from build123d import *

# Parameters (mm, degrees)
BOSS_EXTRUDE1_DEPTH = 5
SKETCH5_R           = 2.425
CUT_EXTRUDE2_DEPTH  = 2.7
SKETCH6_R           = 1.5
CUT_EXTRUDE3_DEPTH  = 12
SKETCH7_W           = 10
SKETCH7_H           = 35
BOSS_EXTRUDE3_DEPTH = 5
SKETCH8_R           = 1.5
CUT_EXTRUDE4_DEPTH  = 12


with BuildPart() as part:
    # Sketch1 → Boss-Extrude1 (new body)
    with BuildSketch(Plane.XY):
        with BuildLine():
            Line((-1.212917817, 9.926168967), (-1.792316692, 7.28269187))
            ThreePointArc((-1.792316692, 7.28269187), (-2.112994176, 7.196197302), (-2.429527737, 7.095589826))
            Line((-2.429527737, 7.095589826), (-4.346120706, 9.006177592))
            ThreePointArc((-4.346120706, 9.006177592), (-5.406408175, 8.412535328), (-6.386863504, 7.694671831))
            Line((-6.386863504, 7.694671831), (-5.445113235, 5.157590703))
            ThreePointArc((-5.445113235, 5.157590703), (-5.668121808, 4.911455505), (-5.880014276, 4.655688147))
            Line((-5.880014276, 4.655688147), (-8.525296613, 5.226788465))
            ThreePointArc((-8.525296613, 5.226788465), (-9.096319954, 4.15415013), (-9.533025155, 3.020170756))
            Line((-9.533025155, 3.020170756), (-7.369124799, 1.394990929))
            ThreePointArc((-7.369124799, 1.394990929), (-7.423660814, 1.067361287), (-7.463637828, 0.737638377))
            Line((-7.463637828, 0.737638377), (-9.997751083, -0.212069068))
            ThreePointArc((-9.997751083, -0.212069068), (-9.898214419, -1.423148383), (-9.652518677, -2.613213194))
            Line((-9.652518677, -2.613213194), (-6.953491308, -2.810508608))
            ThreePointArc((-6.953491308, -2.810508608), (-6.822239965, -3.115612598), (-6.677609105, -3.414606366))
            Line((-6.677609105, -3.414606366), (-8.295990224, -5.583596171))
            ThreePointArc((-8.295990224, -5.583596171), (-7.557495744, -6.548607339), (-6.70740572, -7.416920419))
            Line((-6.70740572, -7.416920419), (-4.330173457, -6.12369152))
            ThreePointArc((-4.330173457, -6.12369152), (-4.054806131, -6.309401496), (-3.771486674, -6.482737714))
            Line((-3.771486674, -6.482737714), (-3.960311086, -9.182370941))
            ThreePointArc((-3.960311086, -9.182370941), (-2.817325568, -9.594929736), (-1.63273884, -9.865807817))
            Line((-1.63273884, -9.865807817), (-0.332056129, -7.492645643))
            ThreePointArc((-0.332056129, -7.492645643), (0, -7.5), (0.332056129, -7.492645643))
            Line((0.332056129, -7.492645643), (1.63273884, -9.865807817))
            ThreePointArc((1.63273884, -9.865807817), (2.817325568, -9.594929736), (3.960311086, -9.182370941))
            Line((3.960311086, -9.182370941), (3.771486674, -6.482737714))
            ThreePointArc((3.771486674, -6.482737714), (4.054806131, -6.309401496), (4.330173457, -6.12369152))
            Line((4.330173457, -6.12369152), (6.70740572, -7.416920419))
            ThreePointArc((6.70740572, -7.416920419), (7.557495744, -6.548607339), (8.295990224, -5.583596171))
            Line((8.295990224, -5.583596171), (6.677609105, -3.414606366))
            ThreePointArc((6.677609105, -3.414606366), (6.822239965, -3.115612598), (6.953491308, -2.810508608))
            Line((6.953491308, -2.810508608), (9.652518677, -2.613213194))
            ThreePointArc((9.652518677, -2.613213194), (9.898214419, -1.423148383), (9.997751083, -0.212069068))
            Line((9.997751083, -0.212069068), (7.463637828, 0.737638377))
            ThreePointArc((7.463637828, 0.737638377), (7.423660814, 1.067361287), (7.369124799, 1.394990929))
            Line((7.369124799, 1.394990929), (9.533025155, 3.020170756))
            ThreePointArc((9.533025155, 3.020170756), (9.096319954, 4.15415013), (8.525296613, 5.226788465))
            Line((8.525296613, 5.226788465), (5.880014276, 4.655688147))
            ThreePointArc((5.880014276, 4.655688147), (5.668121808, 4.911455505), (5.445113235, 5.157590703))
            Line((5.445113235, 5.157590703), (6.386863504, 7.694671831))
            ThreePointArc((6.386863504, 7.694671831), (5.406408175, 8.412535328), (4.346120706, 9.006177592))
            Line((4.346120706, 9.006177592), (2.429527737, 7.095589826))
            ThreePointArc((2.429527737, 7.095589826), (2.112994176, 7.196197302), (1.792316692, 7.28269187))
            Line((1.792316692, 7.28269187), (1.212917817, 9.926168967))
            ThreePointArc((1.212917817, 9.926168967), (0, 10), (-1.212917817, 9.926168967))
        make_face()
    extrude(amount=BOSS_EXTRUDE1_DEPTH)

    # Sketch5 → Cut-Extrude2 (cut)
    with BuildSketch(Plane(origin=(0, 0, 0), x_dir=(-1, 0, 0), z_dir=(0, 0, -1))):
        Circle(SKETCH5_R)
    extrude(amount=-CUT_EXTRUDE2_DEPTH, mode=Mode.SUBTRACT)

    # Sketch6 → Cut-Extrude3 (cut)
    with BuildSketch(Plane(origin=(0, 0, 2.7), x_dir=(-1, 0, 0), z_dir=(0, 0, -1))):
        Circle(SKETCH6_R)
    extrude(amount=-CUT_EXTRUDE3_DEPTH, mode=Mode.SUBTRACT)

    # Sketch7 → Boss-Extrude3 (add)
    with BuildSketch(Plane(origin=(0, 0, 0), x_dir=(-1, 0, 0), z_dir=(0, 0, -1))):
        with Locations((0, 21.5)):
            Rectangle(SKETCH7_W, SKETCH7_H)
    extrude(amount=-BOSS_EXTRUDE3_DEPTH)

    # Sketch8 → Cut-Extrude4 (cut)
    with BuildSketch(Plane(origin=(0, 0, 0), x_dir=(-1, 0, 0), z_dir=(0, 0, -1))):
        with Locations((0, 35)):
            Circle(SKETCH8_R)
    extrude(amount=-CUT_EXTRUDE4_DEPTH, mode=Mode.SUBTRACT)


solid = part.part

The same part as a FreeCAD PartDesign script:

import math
import FreeCAD as App
import Part
import Sketcher

V = App.Vector


def add_polygon(sketch, points):
    """Adds a closed chain of lines whose ends are joined by coincident constraints."""
    first, n = sketch.GeometryCount, len(points)
    for a, b in zip(points, points[1:] + points[:1]):
        sketch.addGeometry(Part.LineSegment(App.Vector(*a, 0), App.Vector(*b, 0)), False)
    for i in range(n):
        sketch.addConstraint(Sketcher.Constraint("Coincident", first + i, 2, first + (i + 1) % n, 1))

doc = App.newDocument("Part")
body = doc.addObject("PartDesign::Body", "Body")

# Sketch on XY plane
sketch1 = body.newObject("Sketcher::SketchObject", "Sketch")
sketch1.AttachmentSupport = (doc.getObject("XY_Plane"), [""])
sketch1.MapMode = "FlatFace"
sketch1.addGeometry(Part.LineSegment(V(-1.2, 9.9, 0), V(-1.8, 7.3, 0)), False)
sketch1.addGeometry(Part.ArcOfCircle(Part.Circle(V(0, 0, 0), V(0, 0, 1), 7.5), math.radians(103.83), math.radians(108.9)), False)
sketch1.addGeometry(Part.LineSegment(V(-2.4, 7.1, 0), V(-4.3, 9, 0)), False)
sketch1.addGeometry(Part.ArcOfCircle(Part.Circle(V(0, 0, 0), V(0, 0, 1), 10), math.radians(115.76), math.radians(129.69)), False)
sketch1.addGeometry(Part.LineSegment(V(-6.4, 7.7, 0), V(-5.4, 5.2, 0)), False)
sketch1.addGeometry(Part.ArcOfCircle(Part.Circle(V(0, 0, 0), V(0, 0, 1), 7.5), math.radians(136.55), math.radians(141.63)), False)
sketch1.addGeometry(Part.LineSegment(V(-5.9, 4.7, 0), V(-8.5, 5.2, 0)), False)
sketch1.addGeometry(Part.ArcOfCircle(Part.Circle(V(0, 0, 0), V(0, 0, 1), 10), math.radians(148.49), math.radians(162.42)), False)
sketch1.addGeometry(Part.LineSegment(V(-9.5, 3, 0), V(-7.4, 1.4, 0)), False)
sketch1.addGeometry(Part.ArcOfCircle(Part.Circle(V(0, 0, 0), V(0, 0, 1), 7.5), math.radians(169.28), math.radians(174.36)), False)
sketch1.addGeometry(Part.LineSegment(V(-7.5, 0.7, 0), V(-10, -0.2, 0)), False)
sketch1.addGeometry(Part.ArcOfCircle(Part.Circle(V(0, 0, 0), V(0, 0, 1), 10), math.radians(-178.78), math.radians(-164.85)), False)
sketch1.addGeometry(Part.LineSegment(V(-9.7, -2.6, 0), V(-7, -2.8, 0)), False)
sketch1.addGeometry(Part.ArcOfCircle(Part.Circle(V(0, 0, 0), V(0, 0, 1), 7.5), math.radians(-157.99), math.radians(-152.92)), False)
sketch1.addGeometry(Part.LineSegment(V(-6.7, -3.4, 0), V(-8.3, -5.6, 0)), False)
sketch1.addGeometry(Part.ArcOfCircle(Part.Circle(V(0, 0, 0), V(0, 0, 1), 10), math.radians(-146.06), math.radians(-132.12)), False)
sketch1.addGeometry(Part.LineSegment(V(-6.7, -7.4, 0), V(-4.3, -6.1, 0)), False)
sketch1.addGeometry(Part.ArcOfCircle(Part.Circle(V(0, 0, 0), V(0, 0, 1), 7.5), math.radians(-125.26), math.radians(-120.19)), False)
sketch1.addGeometry(Part.LineSegment(V(-3.8, -6.5, 0), V(-4, -9.2, 0)), False)
sketch1.addGeometry(Part.ArcOfCircle(Part.Circle(V(0, 0, 0), V(0, 0, 1), 10), math.radians(-113.33), math.radians(-99.4)), False)
sketch1.addGeometry(Part.LineSegment(V(-1.6, -9.9, 0), V(-0.3, -7.5, 0)), False)
sketch1.addGeometry(Part.ArcOfCircle(Part.Circle(V(0, 0, 0), V(0, 0, 1), 7.5), math.radians(-92.54), math.radians(-87.46)), False)
sketch1.addGeometry(Part.LineSegment(V(0.3, -7.5, 0), V(1.6, -9.9, 0)), False)
sketch1.addGeometry(Part.ArcOfCircle(Part.Circle(V(0, 0, 0), V(0, 0, 1), 10), math.radians(-80.6), math.radians(-66.67)), False)
sketch1.addGeometry(Part.LineSegment(V(4, -9.2, 0), V(3.8, -6.5, 0)), False)
sketch1.addGeometry(Part.ArcOfCircle(Part.Circle(V(0, 0, 0), V(0, 0, 1), 7.5), math.radians(-59.81), math.radians(-54.74)), False)
sketch1.addGeometry(Part.LineSegment(V(4.3, -6.1, 0), V(6.7, -7.4, 0)), False)
sketch1.addGeometry(Part.ArcOfCircle(Part.Circle(V(0, 0, 0), V(0, 0, 1), 10), math.radians(-47.88), math.radians(-33.94)), False)
sketch1.addGeometry(Part.LineSegment(V(8.3, -5.6, 0), V(6.7, -3.4, 0)), False)
sketch1.addGeometry(Part.ArcOfCircle(Part.Circle(V(0, 0, 0), V(0, 0, 1), 7.5), math.radians(-27.08), math.radians(-22.01)), False)
sketch1.addGeometry(Part.LineSegment(V(7, -2.8, 0), V(9.7, -2.6, 0)), False)
sketch1.addGeometry(Part.ArcOfCircle(Part.Circle(V(0, 0, 0), V(0, 0, 1), 10), math.radians(-15.15), math.radians(-1.22)), False)
sketch1.addGeometry(Part.LineSegment(V(10, -0.2, 0), V(7.5, 0.7, 0)), False)
sketch1.addGeometry(Part.ArcOfCircle(Part.Circle(V(0, 0, 0), V(0, 0, 1), 7.5), math.radians(5.64), math.radians(10.72)), False)
sketch1.addGeometry(Part.LineSegment(V(7.4, 1.4, 0), V(9.5, 3, 0)), False)
sketch1.addGeometry(Part.ArcOfCircle(Part.Circle(V(0, 0, 0), V(0, 0, 1), 10), math.radians(17.58), math.radians(31.51)), False)
sketch1.addGeometry(Part.LineSegment(V(8.5, 5.2, 0), V(5.9, 4.7, 0)), False)
sketch1.addGeometry(Part.ArcOfCircle(Part.Circle(V(0, 0, 0), V(0, 0, 1), 7.5), math.radians(38.37), math.radians(43.45)), False)
sketch1.addGeometry(Part.LineSegment(V(5.4, 5.2, 0), V(6.4, 7.7, 0)), False)
sketch1.addGeometry(Part.ArcOfCircle(Part.Circle(V(0, 0, 0), V(0, 0, 1), 10), math.radians(50.31), math.radians(64.24)), False)
sketch1.addGeometry(Part.LineSegment(V(4.3, 9, 0), V(2.4, 7.1, 0)), False)
sketch1.addGeometry(Part.ArcOfCircle(Part.Circle(V(0, 0, 0), V(0, 0, 1), 7.5), math.radians(71.1), math.radians(76.17)), False)
sketch1.addGeometry(Part.LineSegment(V(1.8, 7.3, 0), V(1.2, 9.9, 0)), False)
sketch1.addGeometry(Part.ArcOfCircle(Part.Circle(V(0, 0, 0), V(0, 0, 1), 10), math.radians(83.03), math.radians(96.97)), False)
sketch1.addConstraint(Sketcher.Constraint("Coincident", 0, 2, 1, 1))
sketch1.addConstraint(Sketcher.Constraint("Coincident", 1, 2, 2, 1))
sketch1.addConstraint(Sketcher.Constraint("Coincident", 2, 2, 3, 1))
sketch1.addConstraint(Sketcher.Constraint("Coincident", 3, 2, 4, 1))
sketch1.addConstraint(Sketcher.Constraint("Coincident", 4, 2, 5, 1))
sketch1.addConstraint(Sketcher.Constraint("Coincident", 5, 2, 6, 1))
sketch1.addConstraint(Sketcher.Constraint("Coincident", 6, 2, 7, 1))
sketch1.addConstraint(Sketcher.Constraint("Coincident", 7, 2, 8, 1))
sketch1.addConstraint(Sketcher.Constraint("Coincident", 8, 2, 9, 1))
sketch1.addConstraint(Sketcher.Constraint("Coincident", 9, 2, 10, 1))
sketch1.addConstraint(Sketcher.Constraint("Coincident", 10, 2, 11, 1))
sketch1.addConstraint(Sketcher.Constraint("Coincident", 11, 2, 12, 1))
sketch1.addConstraint(Sketcher.Constraint("Coincident", 12, 2, 13, 1))
sketch1.addConstraint(Sketcher.Constraint("Coincident", 13, 2, 14, 1))
sketch1.addConstraint(Sketcher.Constraint("Coincident", 14, 2, 15, 1))
sketch1.addConstraint(Sketcher.Constraint("Coincident", 15, 2, 16, 1))
sketch1.addConstraint(Sketcher.Constraint("Coincident", 16, 2, 17, 1))
sketch1.addConstraint(Sketcher.Constraint("Coincident", 17, 2, 18, 1))
sketch1.addConstraint(Sketcher.Constraint("Coincident", 18, 2, 19, 1))
sketch1.addConstraint(Sketcher.Constraint("Coincident", 19, 2, 20, 1))
sketch1.addConstraint(Sketcher.Constraint("Coincident", 20, 2, 21, 1))
sketch1.addConstraint(Sketcher.Constraint("Coincident", 21, 2, 22, 1))
sketch1.addConstraint(Sketcher.Constraint("Coincident", 22, 2, 23, 1))
sketch1.addConstraint(Sketcher.Constraint("Coincident", 23, 2, 24, 1))
sketch1.addConstraint(Sketcher.Constraint("Coincident", 24, 2, 25, 1))
sketch1.addConstraint(Sketcher.Constraint("Coincident", 25, 2, 26, 1))
sketch1.addConstraint(Sketcher.Constraint("Coincident", 26, 2, 27, 1))
sketch1.addConstraint(Sketcher.Constraint("Coincident", 27, 2, 28, 1))
sketch1.addConstraint(Sketcher.Constraint("Coincident", 28, 2, 29, 1))
sketch1.addConstraint(Sketcher.Constraint("Coincident", 29, 2, 30, 1))
sketch1.addConstraint(Sketcher.Constraint("Coincident", 30, 2, 31, 1))
sketch1.addConstraint(Sketcher.Constraint("Coincident", 31, 2, 32, 1))
sketch1.addConstraint(Sketcher.Constraint("Coincident", 32, 2, 33, 1))
sketch1.addConstraint(Sketcher.Constraint("Coincident", 33, 2, 34, 1))
sketch1.addConstraint(Sketcher.Constraint("Coincident", 34, 2, 35, 1))
sketch1.addConstraint(Sketcher.Constraint("Coincident", 35, 2, 36, 1))
sketch1.addConstraint(Sketcher.Constraint("Coincident", 36, 2, 37, 1))
sketch1.addConstraint(Sketcher.Constraint("Coincident", 37, 2, 38, 1))
sketch1.addConstraint(Sketcher.Constraint("Coincident", 38, 2, 39, 1))
sketch1.addConstraint(Sketcher.Constraint("Coincident", 39, 2, 40, 1))
sketch1.addConstraint(Sketcher.Constraint("Coincident", 40, 2, 41, 1))
sketch1.addConstraint(Sketcher.Constraint("Coincident", 41, 2, 42, 1))
sketch1.addConstraint(Sketcher.Constraint("Coincident", 42, 2, 43, 1))
sketch1.addConstraint(Sketcher.Constraint("Coincident", 43, 2, 0, 1))
sketch1.addConstraint(Sketcher.Constraint("Coincident", 1, 3, -1, 1))
sketch1.addConstraint(Sketcher.Constraint("Coincident", 3, 3, -1, 1))
sketch1.addConstraint(Sketcher.Constraint("Coincident", 5, 3, -1, 1))
sketch1.addConstraint(Sketcher.Constraint("Coincident", 7, 3, -1, 1))
sketch1.addConstraint(Sketcher.Constraint("Coincident", 9, 3, -1, 1))
sketch1.addConstraint(Sketcher.Constraint("Coincident", 11, 3, -1, 1))
sketch1.addConstraint(Sketcher.Constraint("Coincident", 13, 3, -1, 1))
sketch1.addConstraint(Sketcher.Constraint("Coincident", 15, 3, -1, 1))
sketch1.addConstraint(Sketcher.Constraint("Coincident", 17, 3, -1, 1))
sketch1.addConstraint(Sketcher.Constraint("Coincident", 19, 3, -1, 1))
sketch1.addConstraint(Sketcher.Constraint("Coincident", 21, 3, -1, 1))
sketch1.addConstraint(Sketcher.Constraint("Coincident", 23, 3, -1, 1))
sketch1.addConstraint(Sketcher.Constraint("Coincident", 25, 3, -1, 1))
sketch1.addConstraint(Sketcher.Constraint("Coincident", 27, 3, -1, 1))
sketch1.addConstraint(Sketcher.Constraint("Coincident", 29, 3, -1, 1))
sketch1.addConstraint(Sketcher.Constraint("Coincident", 31, 3, -1, 1))
sketch1.addConstraint(Sketcher.Constraint("Coincident", 33, 3, -1, 1))
sketch1.addConstraint(Sketcher.Constraint("Coincident", 35, 3, -1, 1))
sketch1.addConstraint(Sketcher.Constraint("Coincident", 37, 3, -1, 1))
sketch1.addConstraint(Sketcher.Constraint("Coincident", 39, 3, -1, 1))
sketch1.addConstraint(Sketcher.Constraint("Coincident", 41, 3, -1, 1))
sketch1.addConstraint(Sketcher.Constraint("Coincident", 43, 3, -1, 1))
sketch1.addConstraint(Sketcher.Constraint("Equal", 1, 5))
sketch1.addConstraint(Sketcher.Constraint("Equal", 3, 7))
sketch1.addConstraint(Sketcher.Constraint("Equal", 5, 9))
sketch1.addConstraint(Sketcher.Constraint("Equal", 7, 11))
sketch1.addConstraint(Sketcher.Constraint("Equal", 9, 13))
sketch1.addConstraint(Sketcher.Constraint("Equal", 11, 15))
sketch1.addConstraint(Sketcher.Constraint("Equal", 13, 17))
sketch1.addConstraint(Sketcher.Constraint("Equal", 15, 19))
sketch1.addConstraint(Sketcher.Constraint("Equal", 17, 21))
sketch1.addConstraint(Sketcher.Constraint("Equal", 19, 23))
sketch1.addConstraint(Sketcher.Constraint("Equal", 21, 25))
sketch1.addConstraint(Sketcher.Constraint("Equal", 23, 27))
sketch1.addConstraint(Sketcher.Constraint("Equal", 25, 29))
sketch1.addConstraint(Sketcher.Constraint("Equal", 27, 31))
sketch1.addConstraint(Sketcher.Constraint("Equal", 29, 33))
sketch1.addConstraint(Sketcher.Constraint("Equal", 31, 35))
sketch1.addConstraint(Sketcher.Constraint("Equal", 33, 37))
sketch1.addConstraint(Sketcher.Constraint("Equal", 35, 39))
sketch1.addConstraint(Sketcher.Constraint("Equal", 37, 41))
sketch1.addConstraint(Sketcher.Constraint("Equal", 39, 43))
sketch1.addConstraint(Sketcher.Constraint("Horizontal", 20, 2, 21, 2))
sketch1.addConstraint(Sketcher.Constraint("Horizontal", 19, 2, 22, 2))
sketch1.addConstraint(Sketcher.Constraint("Horizontal", 18, 2, 23, 2))
sketch1.addConstraint(Sketcher.Constraint("Horizontal", 17, 2, 24, 2))
sketch1.addConstraint(Sketcher.Constraint("Horizontal", 16, 2, 25, 2))
sketch1.addConstraint(Sketcher.Constraint("Horizontal", 15, 2, 26, 2))
sketch1.addConstraint(Sketcher.Constraint("Horizontal", 14, 2, 27, 2))
sketch1.addConstraint(Sketcher.Constraint("Horizontal", 13, 2, 28, 2))
sketch1.addConstraint(Sketcher.Constraint("Horizontal", 12, 2, 29, 2))
sketch1.addConstraint(Sketcher.Constraint("Horizontal", 11, 2, 30, 2))
sketch1.addConstraint(Sketcher.Constraint("Horizontal", 10, 2, 31, 2))
sketch1.addConstraint(Sketcher.Constraint("Horizontal", 9, 2, 32, 2))
sketch1.addConstraint(Sketcher.Constraint("Horizontal", 8, 2, 33, 2))
sketch1.addConstraint(Sketcher.Constraint("Horizontal", 7, 2, 34, 2))
sketch1.addConstraint(Sketcher.Constraint("Horizontal", 6, 2, 35, 2))
sketch1.addConstraint(Sketcher.Constraint("Horizontal", 5, 2, 36, 2))
sketch1.addConstraint(Sketcher.Constraint("Horizontal", 4, 2, 37, 2))
sketch1.addConstraint(Sketcher.Constraint("Horizontal", 3, 2, 38, 2))
sketch1.addConstraint(Sketcher.Constraint("Horizontal", 2, 2, 39, 2))
sketch1.addConstraint(Sketcher.Constraint("Horizontal", 1, 2, 40, 2))
sketch1.addConstraint(Sketcher.Constraint("Horizontal", 0, 2, 41, 2))
sketch1.addConstraint(Sketcher.Constraint("Horizontal", 42, 2, 43, 2))
sketch1.addConstraint(Sketcher.Constraint("Equal", 0, 2))
sketch1.addConstraint(Sketcher.Constraint("Equal", 2, 4))
sketch1.addConstraint(Sketcher.Constraint("Equal", 4, 6))
sketch1.addConstraint(Sketcher.Constraint("Equal", 6, 8))
sketch1.addConstraint(Sketcher.Constraint("Equal", 8, 10))
sketch1.addConstraint(Sketcher.Constraint("Equal", 10, 12))
sketch1.addConstraint(Sketcher.Constraint("Equal", 12, 14))
sketch1.addConstraint(Sketcher.Constraint("Equal", 14, 16))
sketch1.addConstraint(Sketcher.Constraint("Equal", 16, 18))
sketch1.addConstraint(Sketcher.Constraint("Equal", 18, 20))
sketch1.addConstraint(Sketcher.Constraint("Radius", 3, 10.0))
sketch1.addConstraint(Sketcher.Constraint("Radius", 1, 7.5))
sketch1.addConstraint(Sketcher.Constraint("Distance", 0, 2.706229))
sketch1.addConstraint(Sketcher.Constraint("DistanceY", -1, 1, 0, 2, 7.282692))
sketch1.addConstraint(Sketcher.Constraint("DistanceY", -1, 1, 1, 2, 7.09559))
sketch1.addConstraint(Sketcher.Constraint("DistanceY", -1, 1, 3, 2, 7.694672))
sketch1.addConstraint(Sketcher.Constraint("DistanceY", -1, 1, 5, 2, 4.655688))
sketch1.addConstraint(Sketcher.Constraint("DistanceY", -1, 1, 7, 2, 3.020171))
sketch1.addConstraint(Sketcher.Constraint("DistanceY", -1, 1, 9, 2, 0.737638))
sketch1.addConstraint(Sketcher.Constraint("DistanceX", 11, 2, -1, 1, 9.652519))
sketch1.addConstraint(Sketcher.Constraint("DistanceX", 13, 2, -1, 1, 6.677609))
sketch1.addConstraint(Sketcher.Constraint("DistanceY", 15, 2, -1, 1, 7.41692))
sketch1.addConstraint(Sketcher.Constraint("DistanceX", 18, 2, -1, 1, 3.960311))
sketch1.addConstraint(Sketcher.Constraint("DistanceX", 19, 2, -1, 1, 1.632739))
pad1 = body.newObject("PartDesign::Pad", "Pad")
pad1.Profile = sketch1
pad1.Length = 5

# Sketch on XY plane
sketch2 = body.newObject("Sketcher::SketchObject", "Sketch001")
sketch2.AttachmentSupport = (doc.getObject("XY_Plane"), [""])
sketch2.MapMode = "FlatFace"
sketch2.addGeometry(Part.Circle(V(0, 0, 0), V(0, 0, 1), 2.4), False)
sketch2.addConstraint(Sketcher.Constraint("Coincident", 0, 3, -1, 1))
sketch2.addConstraint(Sketcher.Constraint("Diameter", 0, 4.85))
pocket1 = body.newObject("PartDesign::Pocket", "Pocket")
pocket1.Profile = sketch2
pocket1.Length = 2.7
pocket1.Reversed = True

# Sketch on XY plane
sketch3 = body.newObject("Sketcher::SketchObject", "Sketch002")
sketch3.AttachmentSupport = (doc.getObject("XY_Plane"), [""])
sketch3.MapMode = "FlatFace"
sketch3.AttachmentOffset = App.Placement(V(0, 0, 2.7), App.Rotation())
sketch3.addGeometry(Part.Circle(V(0, 0, 0), V(0, 0, 1), 1.5), False)
sketch3.addConstraint(Sketcher.Constraint("Coincident", 0, 3, -1, 1))
sketch3.addConstraint(Sketcher.Constraint("Diameter", 0, 3.0))
pocket2 = body.newObject("PartDesign::Pocket", "Pocket001")
pocket2.Profile = sketch3
pocket2.Length = 12
pocket2.Reversed = True

# Sketch on XY plane
sketch4 = body.newObject("Sketcher::SketchObject", "Sketch003")
sketch4.AttachmentSupport = (doc.getObject("XY_Plane"), [""])
sketch4.MapMode = "FlatFace"
add_polygon(sketch4, [(5, 39), (5, 4), (-5, 4), (-5, 39)])  # lines 0-3
sketch4.addConstraint(Sketcher.Constraint("Vertical", 0))
sketch4.addConstraint(Sketcher.Constraint("Horizontal", 1))
sketch4.addConstraint(Sketcher.Constraint("Vertical", 2))
sketch4.addConstraint(Sketcher.Constraint("Horizontal", 3))
sketch4.addConstraint(Sketcher.Constraint("DistanceX", 1, 2, 1, 1, 10.0))
sketch4.addConstraint(Sketcher.Constraint("DistanceY", 0, 2, 0, 1, 35.0))
sketch4.addConstraint(Sketcher.Constraint("DistanceX", -1, 1, 0, 2, 5.0))
sketch4.addConstraint(Sketcher.Constraint("DistanceY", -1, 1, 0, 2, 4.0))
pad2 = body.newObject("PartDesign::Pad", "Pad001")
pad2.Profile = sketch4
pad2.Length = 5

# Sketch on XY plane
sketch5 = body.newObject("Sketcher::SketchObject", "Sketch004")
sketch5.AttachmentSupport = (doc.getObject("XY_Plane"), [""])
sketch5.MapMode = "FlatFace"
sketch5.addGeometry(Part.Circle(V(0, 35, 0), V(0, 0, 1), 1.5), False)
sketch5.addConstraint(Sketcher.Constraint("PointOnObject", 0, 3, -2))
sketch5.addConstraint(Sketcher.Constraint("Diameter", 0, 3.0))
sketch5.addConstraint(Sketcher.Constraint("DistanceY", -1, 1, 0, 3, 35.0))
pocket3 = body.newObject("PartDesign::Pocket", "Pocket002")
pocket3.Profile = sketch5
pocket3.Length = 12
pocket3.Reversed = True

doc.recompute()
